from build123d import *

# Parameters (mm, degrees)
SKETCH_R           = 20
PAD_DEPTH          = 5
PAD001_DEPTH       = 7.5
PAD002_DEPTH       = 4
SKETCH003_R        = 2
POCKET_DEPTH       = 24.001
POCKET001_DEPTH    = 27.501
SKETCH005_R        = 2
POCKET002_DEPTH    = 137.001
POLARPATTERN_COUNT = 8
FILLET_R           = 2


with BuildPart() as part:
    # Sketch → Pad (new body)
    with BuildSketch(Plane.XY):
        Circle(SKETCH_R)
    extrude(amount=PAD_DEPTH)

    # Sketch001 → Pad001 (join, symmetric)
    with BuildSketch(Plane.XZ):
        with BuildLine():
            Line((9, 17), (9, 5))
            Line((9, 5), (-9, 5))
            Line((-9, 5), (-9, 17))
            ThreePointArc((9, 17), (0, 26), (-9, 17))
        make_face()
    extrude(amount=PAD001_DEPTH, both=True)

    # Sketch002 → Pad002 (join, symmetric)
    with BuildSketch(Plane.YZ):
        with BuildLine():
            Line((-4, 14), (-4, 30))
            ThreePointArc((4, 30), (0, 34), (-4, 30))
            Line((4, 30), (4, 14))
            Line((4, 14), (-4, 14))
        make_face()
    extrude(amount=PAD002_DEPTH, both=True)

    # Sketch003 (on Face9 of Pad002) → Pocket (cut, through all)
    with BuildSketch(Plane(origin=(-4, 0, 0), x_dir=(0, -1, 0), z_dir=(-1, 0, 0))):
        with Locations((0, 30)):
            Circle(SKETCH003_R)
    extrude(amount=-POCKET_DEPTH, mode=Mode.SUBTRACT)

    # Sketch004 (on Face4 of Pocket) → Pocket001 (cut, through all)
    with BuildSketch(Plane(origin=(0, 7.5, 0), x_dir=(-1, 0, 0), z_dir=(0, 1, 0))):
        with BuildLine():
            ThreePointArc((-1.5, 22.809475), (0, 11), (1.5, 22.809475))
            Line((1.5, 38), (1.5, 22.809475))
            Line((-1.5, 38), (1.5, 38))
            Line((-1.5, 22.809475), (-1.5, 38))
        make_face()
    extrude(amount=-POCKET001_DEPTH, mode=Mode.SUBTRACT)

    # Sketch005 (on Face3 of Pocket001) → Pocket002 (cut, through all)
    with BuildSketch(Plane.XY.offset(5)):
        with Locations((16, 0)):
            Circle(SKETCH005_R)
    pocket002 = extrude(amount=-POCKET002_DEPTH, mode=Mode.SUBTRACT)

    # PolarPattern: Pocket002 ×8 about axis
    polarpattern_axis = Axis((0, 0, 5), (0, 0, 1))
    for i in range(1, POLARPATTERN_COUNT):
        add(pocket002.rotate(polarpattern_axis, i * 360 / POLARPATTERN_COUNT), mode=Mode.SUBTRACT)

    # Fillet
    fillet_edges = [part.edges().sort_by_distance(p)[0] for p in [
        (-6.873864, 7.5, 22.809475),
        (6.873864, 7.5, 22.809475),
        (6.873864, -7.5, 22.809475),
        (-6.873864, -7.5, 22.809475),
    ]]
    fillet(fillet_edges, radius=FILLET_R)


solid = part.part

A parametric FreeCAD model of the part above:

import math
import FreeCAD as App
import Part
import Sketcher


def edges_at(feature, points):
    """Names of the edges that pass closest to the given points."""
    edges = feature.Shape.Edges
    near = lambda p: min(range(len(edges)), key=lambda i: edges[i].distToShape(Part.Vertex(*p))[0])
    return sorted({f"Edge{near(p) + 1}" for p in points})

doc = App.newDocument("Part")
params = doc.addObject("Spreadsheet::Sheet", "Params")
for row, (alias, value) in enumerate([
    ("sketch1_diameter", "40 mm"),
    ("pad1_length", "5 mm"),
    ("sketch2_radius", "9 mm"),
    ("sketch2_height", "12 mm"),
    ("pad2_length", "15 mm"),
    ("sketch3_radius", "4 mm"),
    ("sketch3_height", "16 mm"),
    ("pad3_length", "8 mm"),
    ("sketch4_diameter", "4 mm"),
    ("sketch5_radius", "6 mm"),
    ("sketch5_width", "3 mm"),
    ("sketch6_diameter", "4 mm"),
    ("fillet_radius", "2 mm"),
], start=1):
    params.set(f"A{row}", alias)
    params.set(f"B{row}", "=" + value)
    params.setAlias(f"B{row}", alias)

body = doc.addObject("PartDesign::Body", "Body")

# Sketch on XY plane
sketch1 = doc.addObject("Sketcher::SketchObject", "Sketch")
body.addObject(sketch1)
sketch1.AttachmentSupport = (doc.XY_Plane, [""])
sketch1.MapMode = "FlatFace"
sketch1.addGeometry(Part.Circle(App.Vector(0, 0, 0), App.Vector(0, 0, 1), 20), False)
sketch1.addConstraint(Sketcher.Constraint("Coincident", 0, 3, -1, 1))
sketch1.addConstraint(Sketcher.Constraint("Diameter", 0, 40.0))
sketch1.setExpression("Constraints[1]", "Params.sketch1_diameter")
pad1 = doc.addObject("PartDesign::Pad", "Pad")
body.addObject(pad1)
pad1.Profile = sketch1
pad1.setExpression("Length", "Params.pad1_length")

# Sketch on XZ plane
sketch2 = doc.addObject("Sketcher::SketchObject", "Sketch001")
body.addObject(sketch2)
sketch2.AttachmentSupport = (doc.XZ_Plane, [""])
sketch2.MapMode = "FlatFace"
sketch2.addGeometry(Part.LineSegment(App.Vector(9, 5, 0), App.Vector(9, 17, 0)), False)
sketch2.addGeometry(Part.ArcOfCircle(Part.Circle(App.Vector(0, 17, 0), App.Vector(0, 0, 1), 9), math.radians(0), math.radians(180)), False)
sketch2.addGeometry(Part.LineSegment(App.Vector(-9, 17, 0), App.Vector(-9, 5, 0)), False)
sketch2.addGeometry(Part.LineSegment(App.Vector(-9, 5, 0), App.Vector(9, 5, 0)), False)
sketch2.addConstraint(Sketcher.Constraint("Tangent", 0, 2, 1, 1))
sketch2.addConstraint(Sketcher.Constraint("Tangent", 1, 2, 2, 1))
sketch2.addConstraint(Sketcher.Constraint("Coincident", 2, 2, 3, 1))
sketch2.addConstraint(Sketcher.Constraint("Coincident", 3, 2, 0, 1))
sketch2.addConstraint(Sketcher.Constraint("Vertical", 0))
sketch2.addConstraint(Sketcher.Constraint("Vertical", 2))
sketch2.addConstraint(Sketcher.Constraint("Horizontal", 3))
sketch2.addConstraint(Sketcher.Constraint("PointOnObject", 1, 3, -2))
sketch2.addConstraint(Sketcher.Constraint("Radius", 1, 9.0))
sketch2.addConstraint(Sketcher.Constraint("DistanceY", 0, 1, 0, 2, 12.0))
sketch2.addConstraint(Sketcher.Constraint("DistanceY", -1, 1, 1, 3, 17.0))
sketch2.setExpression("Constraints[8]", "Params.sketch2_radius")
sketch2.setExpression("Constraints[9]", "Params.sketch2_height")
pad2 = doc.addObject("PartDesign::Pad", "Pad001")
body.addObject(pad2)
pad2.Profile = sketch2
pad2.setExpression("Length", "Params.pad2_length")
pad2.Midplane = True

# Sketch on YZ plane
sketch3 = doc.addObject("Sketcher::SketchObject", "Sketch002")
body.addObject(sketch3)
sketch3.AttachmentSupport = (doc.YZ_Plane, [""])
sketch3.MapMode = "FlatFace"
sketch3.addGeometry(Part.LineSegment(App.Vector(-4, 30, 0), App.Vector(-4, 14, 0)), False)
sketch3.addGeometry(Part.LineSegment(App.Vector(-4, 14, 0), App.Vector(4, 14, 0)), False)
sketch3.addGeometry(Part.LineSegment(App.Vector(4, 14, 0), App.Vector(4, 30, 0)), False)
sketch3.addGeometry(Part.ArcOfCircle(Part.Circle(App.Vector(0, 30, 0), App.Vector(0, 0, 1), 4), math.radians(0), math.radians(180)), False)
sketch3.addConstraint(Sketcher.Constraint("Coincident", 0, 2, 1, 1))
sketch3.addConstraint(Sketcher.Constraint("Coincident", 1, 2, 2, 1))
sketch3.addConstraint(Sketcher.Constraint("Tangent", 2, 2, 3, 1))
sketch3.addConstraint(Sketcher.Constraint("Tangent", 3, 2, 0, 1))
sketch3.addConstraint(Sketcher.Constraint("Vertical", 0))
sketch3.addConstraint(Sketcher.Constraint("Horizontal", 1))
sketch3.addConstraint(Sketcher.Constraint("Vertical", 2))
sketch3.addConstraint(Sketcher.Constraint("PointOnObject", 3, 3, -2))
sketch3.addConstraint(Sketcher.Constraint("Radius", 3, 4.0))
sketch3.addConstraint(Sketcher.Constraint("DistanceY", 0, 2, 0, 1, 16.0))
sketch3.addConstraint(Sketcher.Constraint("DistanceY", -1, 1, 3, 3, 30.0))
sketch3.setExpression("Constraints[8]", "Params.sketch3_radius")
sketch3.setExpression("Constraints[9]", "Params.sketch3_height")
pad3 = doc.addObject("PartDesign::Pad", "Pad002")
body.addObject(pad3)
pad3.Profile = sketch3
pad3.setExpression("Length", "Params.pad3_length")
pad3.Midplane = True

# Sketch on YZ plane
sketch4 = doc.addObject("Sketcher::SketchObject", "Sketch003")
body.addObject(sketch4)
sketch4.AttachmentSupport = (doc.YZ_Plane, [""])
sketch4.MapMode = "FlatFace"
sketch4.AttachmentOffset = App.Placement(App.Vector(0, 0, -4), App.Rotation())
sketch4.addGeometry(Part.Circle(App.Vector(0, 30, 0), App.Vector(0, 0, 1), 2), False)
sketch4.addConstraint(Sketcher.Constraint("PointOnObject", 0, 3, -2))
sketch4.addConstraint(Sketcher.Constraint("Diameter", 0, 4.0))
sketch4.addConstraint(Sketcher.Constraint("DistanceY", -1, 1, 0, 3, 30.0))
sketch4.setExpression("Constraints[1]", "Params.sketch4_diameter")
pocket1 = doc.addObject("PartDesign::Pocket", "Pocket")
body.addObject(pocket1)
pocket1.Profile = sketch4
pocket1.Type = "ThroughAll"
pocket1.Reversed = True

# Sketch on XZ plane
sketch5 = doc.addObject("Sketcher::SketchObject", "Sketch004")
body.addObject(sketch5)
sketch5.AttachmentSupport = (doc.XZ_Plane, [""])
sketch5.MapMode = "FlatFace"
sketch5.AttachmentOffset = App.Placement(App.Vector(0, 0, -7.5), App.Rotation())
sketch5.addGeometry(Part.ArcOfCircle(Part.Circle(App.Vector(0, 17, 0), App.Vector(0, 0, 1), 6), math.radians(104.477512), math.radians(435.522488)), False)
sketch5.addGeometry(Part.LineSegment(App.Vector(-1.5, 22.809475, 0), App.Vector(-1.5, 38, 0)), False)
sketch5.addGeometry(Part.LineSegment(App.Vector(-1.5, 38, 0), App.Vector(1.5, 38, 0)), False)
sketch5.addGeometry(Part.LineSegment(App.Vector(1.5, 38, 0), App.Vector(1.5, 22.809475, 0)), False)
sketch5.addConstraint(Sketcher.Constraint("Coincident", 0, 1, 1, 1))
sketch5.addConstraint(Sketcher.Constraint("Coincident", 1, 2, 2, 1))
sketch5.addConstraint(Sketcher.Constraint("Coincident", 2, 2, 3, 1))
sketch5.addConstraint(Sketcher.Constraint("Coincident", 3, 2, 0, 2))
sketch5.addConstraint(Sketcher.Constraint("Vertical", 1))
sketch5.addConstraint(Sketcher.Constraint("Horizontal", 2))
sketch5.addConstraint(Sketcher.Constraint("Vertical", 3))
sketch5.addConstraint(Sketcher.Constraint("Symmetric", 0, 1, 3, 2, -2))
sketch5.addConstraint(Sketcher.Constraint("Radius", 0, 6.0))
sketch5.addConstraint(Sketcher.Constraint("DistanceX", 2, 1, 2, 2, 3.0))
sketch5.addConstraint(Sketcher.Constraint("DistanceY", -1, 1, 0, 3, 17.0))
sketch5.addConstraint(Sketcher.Constraint("DistanceY", -1, 1, 1, 2, 38.0))
sketch5.setExpression("Constraints[8]", "Params.sketch5_radius")
sketch5.setExpression("Constraints[9]", "Params.sketch5_width")
pocket2 = doc.addObject("PartDesign::Pocket", "Pocket001")
body.addObject(pocket2)
pocket2.Profile = sketch5
pocket2.Type = "ThroughAll"
pocket2.Reversed = True

# Sketch on XY plane
sketch6 = doc.addObject("Sketcher::SketchObject", "Sketch005")
body.addObject(sketch6)
sketch6.AttachmentSupport = (doc.XY_Plane, [""])
sketch6.MapMode = "FlatFace"
sketch6.AttachmentOffset = App.Placement(App.Vector(0, 0, 5), App.Rotation())
sketch6.addGeometry(Part.Circle(App.Vector(16, 0, 0), App.Vector(0, 0, 1), 2), False)
sketch6.addConstraint(Sketcher.Constraint("PointOnObject", 0, 3, -1))
sketch6.addConstraint(Sketcher.Constraint("Diameter", 0, 4.0))
sketch6.addConstraint(Sketcher.Constraint("DistanceX", -1, 1, 0, 3, 16.0))
sketch6.setExpression("Constraints[1]", "Params.sketch6_diameter")
pocket3 = doc.addObject("PartDesign::Pocket", "Pocket002")
body.addObject(pocket3)
pocket3.Profile = sketch6
pocket3.Type = "ThroughAll"
doc.recompute()

polarpattern = doc.addObject("PartDesign::PolarPattern", "PolarPattern")
body.addObject(polarpattern)
polarpattern.Originals = [pocket3]
polarpattern.Axis = (doc.Z_Axis, [""])
polarpattern.Angle = 360
polarpattern.Occurrences = 8
body.Tip = polarpattern
doc.recompute()

fillet = doc.addObject("PartDesign::Fillet", "Fillet")
body.addObject(fillet)
fillet.Base = (polarpattern, edges_at(polarpattern, [
    (-6.874, 7.5, 22.809),
    (6.874, 7.5, 22.809),
    (6.874, -7.5, 22.809),
    (-6.874, -7.5, 22.809),
]))
fillet.setExpression("Radius", "Params.fillet_radius")

doc.recompute()
